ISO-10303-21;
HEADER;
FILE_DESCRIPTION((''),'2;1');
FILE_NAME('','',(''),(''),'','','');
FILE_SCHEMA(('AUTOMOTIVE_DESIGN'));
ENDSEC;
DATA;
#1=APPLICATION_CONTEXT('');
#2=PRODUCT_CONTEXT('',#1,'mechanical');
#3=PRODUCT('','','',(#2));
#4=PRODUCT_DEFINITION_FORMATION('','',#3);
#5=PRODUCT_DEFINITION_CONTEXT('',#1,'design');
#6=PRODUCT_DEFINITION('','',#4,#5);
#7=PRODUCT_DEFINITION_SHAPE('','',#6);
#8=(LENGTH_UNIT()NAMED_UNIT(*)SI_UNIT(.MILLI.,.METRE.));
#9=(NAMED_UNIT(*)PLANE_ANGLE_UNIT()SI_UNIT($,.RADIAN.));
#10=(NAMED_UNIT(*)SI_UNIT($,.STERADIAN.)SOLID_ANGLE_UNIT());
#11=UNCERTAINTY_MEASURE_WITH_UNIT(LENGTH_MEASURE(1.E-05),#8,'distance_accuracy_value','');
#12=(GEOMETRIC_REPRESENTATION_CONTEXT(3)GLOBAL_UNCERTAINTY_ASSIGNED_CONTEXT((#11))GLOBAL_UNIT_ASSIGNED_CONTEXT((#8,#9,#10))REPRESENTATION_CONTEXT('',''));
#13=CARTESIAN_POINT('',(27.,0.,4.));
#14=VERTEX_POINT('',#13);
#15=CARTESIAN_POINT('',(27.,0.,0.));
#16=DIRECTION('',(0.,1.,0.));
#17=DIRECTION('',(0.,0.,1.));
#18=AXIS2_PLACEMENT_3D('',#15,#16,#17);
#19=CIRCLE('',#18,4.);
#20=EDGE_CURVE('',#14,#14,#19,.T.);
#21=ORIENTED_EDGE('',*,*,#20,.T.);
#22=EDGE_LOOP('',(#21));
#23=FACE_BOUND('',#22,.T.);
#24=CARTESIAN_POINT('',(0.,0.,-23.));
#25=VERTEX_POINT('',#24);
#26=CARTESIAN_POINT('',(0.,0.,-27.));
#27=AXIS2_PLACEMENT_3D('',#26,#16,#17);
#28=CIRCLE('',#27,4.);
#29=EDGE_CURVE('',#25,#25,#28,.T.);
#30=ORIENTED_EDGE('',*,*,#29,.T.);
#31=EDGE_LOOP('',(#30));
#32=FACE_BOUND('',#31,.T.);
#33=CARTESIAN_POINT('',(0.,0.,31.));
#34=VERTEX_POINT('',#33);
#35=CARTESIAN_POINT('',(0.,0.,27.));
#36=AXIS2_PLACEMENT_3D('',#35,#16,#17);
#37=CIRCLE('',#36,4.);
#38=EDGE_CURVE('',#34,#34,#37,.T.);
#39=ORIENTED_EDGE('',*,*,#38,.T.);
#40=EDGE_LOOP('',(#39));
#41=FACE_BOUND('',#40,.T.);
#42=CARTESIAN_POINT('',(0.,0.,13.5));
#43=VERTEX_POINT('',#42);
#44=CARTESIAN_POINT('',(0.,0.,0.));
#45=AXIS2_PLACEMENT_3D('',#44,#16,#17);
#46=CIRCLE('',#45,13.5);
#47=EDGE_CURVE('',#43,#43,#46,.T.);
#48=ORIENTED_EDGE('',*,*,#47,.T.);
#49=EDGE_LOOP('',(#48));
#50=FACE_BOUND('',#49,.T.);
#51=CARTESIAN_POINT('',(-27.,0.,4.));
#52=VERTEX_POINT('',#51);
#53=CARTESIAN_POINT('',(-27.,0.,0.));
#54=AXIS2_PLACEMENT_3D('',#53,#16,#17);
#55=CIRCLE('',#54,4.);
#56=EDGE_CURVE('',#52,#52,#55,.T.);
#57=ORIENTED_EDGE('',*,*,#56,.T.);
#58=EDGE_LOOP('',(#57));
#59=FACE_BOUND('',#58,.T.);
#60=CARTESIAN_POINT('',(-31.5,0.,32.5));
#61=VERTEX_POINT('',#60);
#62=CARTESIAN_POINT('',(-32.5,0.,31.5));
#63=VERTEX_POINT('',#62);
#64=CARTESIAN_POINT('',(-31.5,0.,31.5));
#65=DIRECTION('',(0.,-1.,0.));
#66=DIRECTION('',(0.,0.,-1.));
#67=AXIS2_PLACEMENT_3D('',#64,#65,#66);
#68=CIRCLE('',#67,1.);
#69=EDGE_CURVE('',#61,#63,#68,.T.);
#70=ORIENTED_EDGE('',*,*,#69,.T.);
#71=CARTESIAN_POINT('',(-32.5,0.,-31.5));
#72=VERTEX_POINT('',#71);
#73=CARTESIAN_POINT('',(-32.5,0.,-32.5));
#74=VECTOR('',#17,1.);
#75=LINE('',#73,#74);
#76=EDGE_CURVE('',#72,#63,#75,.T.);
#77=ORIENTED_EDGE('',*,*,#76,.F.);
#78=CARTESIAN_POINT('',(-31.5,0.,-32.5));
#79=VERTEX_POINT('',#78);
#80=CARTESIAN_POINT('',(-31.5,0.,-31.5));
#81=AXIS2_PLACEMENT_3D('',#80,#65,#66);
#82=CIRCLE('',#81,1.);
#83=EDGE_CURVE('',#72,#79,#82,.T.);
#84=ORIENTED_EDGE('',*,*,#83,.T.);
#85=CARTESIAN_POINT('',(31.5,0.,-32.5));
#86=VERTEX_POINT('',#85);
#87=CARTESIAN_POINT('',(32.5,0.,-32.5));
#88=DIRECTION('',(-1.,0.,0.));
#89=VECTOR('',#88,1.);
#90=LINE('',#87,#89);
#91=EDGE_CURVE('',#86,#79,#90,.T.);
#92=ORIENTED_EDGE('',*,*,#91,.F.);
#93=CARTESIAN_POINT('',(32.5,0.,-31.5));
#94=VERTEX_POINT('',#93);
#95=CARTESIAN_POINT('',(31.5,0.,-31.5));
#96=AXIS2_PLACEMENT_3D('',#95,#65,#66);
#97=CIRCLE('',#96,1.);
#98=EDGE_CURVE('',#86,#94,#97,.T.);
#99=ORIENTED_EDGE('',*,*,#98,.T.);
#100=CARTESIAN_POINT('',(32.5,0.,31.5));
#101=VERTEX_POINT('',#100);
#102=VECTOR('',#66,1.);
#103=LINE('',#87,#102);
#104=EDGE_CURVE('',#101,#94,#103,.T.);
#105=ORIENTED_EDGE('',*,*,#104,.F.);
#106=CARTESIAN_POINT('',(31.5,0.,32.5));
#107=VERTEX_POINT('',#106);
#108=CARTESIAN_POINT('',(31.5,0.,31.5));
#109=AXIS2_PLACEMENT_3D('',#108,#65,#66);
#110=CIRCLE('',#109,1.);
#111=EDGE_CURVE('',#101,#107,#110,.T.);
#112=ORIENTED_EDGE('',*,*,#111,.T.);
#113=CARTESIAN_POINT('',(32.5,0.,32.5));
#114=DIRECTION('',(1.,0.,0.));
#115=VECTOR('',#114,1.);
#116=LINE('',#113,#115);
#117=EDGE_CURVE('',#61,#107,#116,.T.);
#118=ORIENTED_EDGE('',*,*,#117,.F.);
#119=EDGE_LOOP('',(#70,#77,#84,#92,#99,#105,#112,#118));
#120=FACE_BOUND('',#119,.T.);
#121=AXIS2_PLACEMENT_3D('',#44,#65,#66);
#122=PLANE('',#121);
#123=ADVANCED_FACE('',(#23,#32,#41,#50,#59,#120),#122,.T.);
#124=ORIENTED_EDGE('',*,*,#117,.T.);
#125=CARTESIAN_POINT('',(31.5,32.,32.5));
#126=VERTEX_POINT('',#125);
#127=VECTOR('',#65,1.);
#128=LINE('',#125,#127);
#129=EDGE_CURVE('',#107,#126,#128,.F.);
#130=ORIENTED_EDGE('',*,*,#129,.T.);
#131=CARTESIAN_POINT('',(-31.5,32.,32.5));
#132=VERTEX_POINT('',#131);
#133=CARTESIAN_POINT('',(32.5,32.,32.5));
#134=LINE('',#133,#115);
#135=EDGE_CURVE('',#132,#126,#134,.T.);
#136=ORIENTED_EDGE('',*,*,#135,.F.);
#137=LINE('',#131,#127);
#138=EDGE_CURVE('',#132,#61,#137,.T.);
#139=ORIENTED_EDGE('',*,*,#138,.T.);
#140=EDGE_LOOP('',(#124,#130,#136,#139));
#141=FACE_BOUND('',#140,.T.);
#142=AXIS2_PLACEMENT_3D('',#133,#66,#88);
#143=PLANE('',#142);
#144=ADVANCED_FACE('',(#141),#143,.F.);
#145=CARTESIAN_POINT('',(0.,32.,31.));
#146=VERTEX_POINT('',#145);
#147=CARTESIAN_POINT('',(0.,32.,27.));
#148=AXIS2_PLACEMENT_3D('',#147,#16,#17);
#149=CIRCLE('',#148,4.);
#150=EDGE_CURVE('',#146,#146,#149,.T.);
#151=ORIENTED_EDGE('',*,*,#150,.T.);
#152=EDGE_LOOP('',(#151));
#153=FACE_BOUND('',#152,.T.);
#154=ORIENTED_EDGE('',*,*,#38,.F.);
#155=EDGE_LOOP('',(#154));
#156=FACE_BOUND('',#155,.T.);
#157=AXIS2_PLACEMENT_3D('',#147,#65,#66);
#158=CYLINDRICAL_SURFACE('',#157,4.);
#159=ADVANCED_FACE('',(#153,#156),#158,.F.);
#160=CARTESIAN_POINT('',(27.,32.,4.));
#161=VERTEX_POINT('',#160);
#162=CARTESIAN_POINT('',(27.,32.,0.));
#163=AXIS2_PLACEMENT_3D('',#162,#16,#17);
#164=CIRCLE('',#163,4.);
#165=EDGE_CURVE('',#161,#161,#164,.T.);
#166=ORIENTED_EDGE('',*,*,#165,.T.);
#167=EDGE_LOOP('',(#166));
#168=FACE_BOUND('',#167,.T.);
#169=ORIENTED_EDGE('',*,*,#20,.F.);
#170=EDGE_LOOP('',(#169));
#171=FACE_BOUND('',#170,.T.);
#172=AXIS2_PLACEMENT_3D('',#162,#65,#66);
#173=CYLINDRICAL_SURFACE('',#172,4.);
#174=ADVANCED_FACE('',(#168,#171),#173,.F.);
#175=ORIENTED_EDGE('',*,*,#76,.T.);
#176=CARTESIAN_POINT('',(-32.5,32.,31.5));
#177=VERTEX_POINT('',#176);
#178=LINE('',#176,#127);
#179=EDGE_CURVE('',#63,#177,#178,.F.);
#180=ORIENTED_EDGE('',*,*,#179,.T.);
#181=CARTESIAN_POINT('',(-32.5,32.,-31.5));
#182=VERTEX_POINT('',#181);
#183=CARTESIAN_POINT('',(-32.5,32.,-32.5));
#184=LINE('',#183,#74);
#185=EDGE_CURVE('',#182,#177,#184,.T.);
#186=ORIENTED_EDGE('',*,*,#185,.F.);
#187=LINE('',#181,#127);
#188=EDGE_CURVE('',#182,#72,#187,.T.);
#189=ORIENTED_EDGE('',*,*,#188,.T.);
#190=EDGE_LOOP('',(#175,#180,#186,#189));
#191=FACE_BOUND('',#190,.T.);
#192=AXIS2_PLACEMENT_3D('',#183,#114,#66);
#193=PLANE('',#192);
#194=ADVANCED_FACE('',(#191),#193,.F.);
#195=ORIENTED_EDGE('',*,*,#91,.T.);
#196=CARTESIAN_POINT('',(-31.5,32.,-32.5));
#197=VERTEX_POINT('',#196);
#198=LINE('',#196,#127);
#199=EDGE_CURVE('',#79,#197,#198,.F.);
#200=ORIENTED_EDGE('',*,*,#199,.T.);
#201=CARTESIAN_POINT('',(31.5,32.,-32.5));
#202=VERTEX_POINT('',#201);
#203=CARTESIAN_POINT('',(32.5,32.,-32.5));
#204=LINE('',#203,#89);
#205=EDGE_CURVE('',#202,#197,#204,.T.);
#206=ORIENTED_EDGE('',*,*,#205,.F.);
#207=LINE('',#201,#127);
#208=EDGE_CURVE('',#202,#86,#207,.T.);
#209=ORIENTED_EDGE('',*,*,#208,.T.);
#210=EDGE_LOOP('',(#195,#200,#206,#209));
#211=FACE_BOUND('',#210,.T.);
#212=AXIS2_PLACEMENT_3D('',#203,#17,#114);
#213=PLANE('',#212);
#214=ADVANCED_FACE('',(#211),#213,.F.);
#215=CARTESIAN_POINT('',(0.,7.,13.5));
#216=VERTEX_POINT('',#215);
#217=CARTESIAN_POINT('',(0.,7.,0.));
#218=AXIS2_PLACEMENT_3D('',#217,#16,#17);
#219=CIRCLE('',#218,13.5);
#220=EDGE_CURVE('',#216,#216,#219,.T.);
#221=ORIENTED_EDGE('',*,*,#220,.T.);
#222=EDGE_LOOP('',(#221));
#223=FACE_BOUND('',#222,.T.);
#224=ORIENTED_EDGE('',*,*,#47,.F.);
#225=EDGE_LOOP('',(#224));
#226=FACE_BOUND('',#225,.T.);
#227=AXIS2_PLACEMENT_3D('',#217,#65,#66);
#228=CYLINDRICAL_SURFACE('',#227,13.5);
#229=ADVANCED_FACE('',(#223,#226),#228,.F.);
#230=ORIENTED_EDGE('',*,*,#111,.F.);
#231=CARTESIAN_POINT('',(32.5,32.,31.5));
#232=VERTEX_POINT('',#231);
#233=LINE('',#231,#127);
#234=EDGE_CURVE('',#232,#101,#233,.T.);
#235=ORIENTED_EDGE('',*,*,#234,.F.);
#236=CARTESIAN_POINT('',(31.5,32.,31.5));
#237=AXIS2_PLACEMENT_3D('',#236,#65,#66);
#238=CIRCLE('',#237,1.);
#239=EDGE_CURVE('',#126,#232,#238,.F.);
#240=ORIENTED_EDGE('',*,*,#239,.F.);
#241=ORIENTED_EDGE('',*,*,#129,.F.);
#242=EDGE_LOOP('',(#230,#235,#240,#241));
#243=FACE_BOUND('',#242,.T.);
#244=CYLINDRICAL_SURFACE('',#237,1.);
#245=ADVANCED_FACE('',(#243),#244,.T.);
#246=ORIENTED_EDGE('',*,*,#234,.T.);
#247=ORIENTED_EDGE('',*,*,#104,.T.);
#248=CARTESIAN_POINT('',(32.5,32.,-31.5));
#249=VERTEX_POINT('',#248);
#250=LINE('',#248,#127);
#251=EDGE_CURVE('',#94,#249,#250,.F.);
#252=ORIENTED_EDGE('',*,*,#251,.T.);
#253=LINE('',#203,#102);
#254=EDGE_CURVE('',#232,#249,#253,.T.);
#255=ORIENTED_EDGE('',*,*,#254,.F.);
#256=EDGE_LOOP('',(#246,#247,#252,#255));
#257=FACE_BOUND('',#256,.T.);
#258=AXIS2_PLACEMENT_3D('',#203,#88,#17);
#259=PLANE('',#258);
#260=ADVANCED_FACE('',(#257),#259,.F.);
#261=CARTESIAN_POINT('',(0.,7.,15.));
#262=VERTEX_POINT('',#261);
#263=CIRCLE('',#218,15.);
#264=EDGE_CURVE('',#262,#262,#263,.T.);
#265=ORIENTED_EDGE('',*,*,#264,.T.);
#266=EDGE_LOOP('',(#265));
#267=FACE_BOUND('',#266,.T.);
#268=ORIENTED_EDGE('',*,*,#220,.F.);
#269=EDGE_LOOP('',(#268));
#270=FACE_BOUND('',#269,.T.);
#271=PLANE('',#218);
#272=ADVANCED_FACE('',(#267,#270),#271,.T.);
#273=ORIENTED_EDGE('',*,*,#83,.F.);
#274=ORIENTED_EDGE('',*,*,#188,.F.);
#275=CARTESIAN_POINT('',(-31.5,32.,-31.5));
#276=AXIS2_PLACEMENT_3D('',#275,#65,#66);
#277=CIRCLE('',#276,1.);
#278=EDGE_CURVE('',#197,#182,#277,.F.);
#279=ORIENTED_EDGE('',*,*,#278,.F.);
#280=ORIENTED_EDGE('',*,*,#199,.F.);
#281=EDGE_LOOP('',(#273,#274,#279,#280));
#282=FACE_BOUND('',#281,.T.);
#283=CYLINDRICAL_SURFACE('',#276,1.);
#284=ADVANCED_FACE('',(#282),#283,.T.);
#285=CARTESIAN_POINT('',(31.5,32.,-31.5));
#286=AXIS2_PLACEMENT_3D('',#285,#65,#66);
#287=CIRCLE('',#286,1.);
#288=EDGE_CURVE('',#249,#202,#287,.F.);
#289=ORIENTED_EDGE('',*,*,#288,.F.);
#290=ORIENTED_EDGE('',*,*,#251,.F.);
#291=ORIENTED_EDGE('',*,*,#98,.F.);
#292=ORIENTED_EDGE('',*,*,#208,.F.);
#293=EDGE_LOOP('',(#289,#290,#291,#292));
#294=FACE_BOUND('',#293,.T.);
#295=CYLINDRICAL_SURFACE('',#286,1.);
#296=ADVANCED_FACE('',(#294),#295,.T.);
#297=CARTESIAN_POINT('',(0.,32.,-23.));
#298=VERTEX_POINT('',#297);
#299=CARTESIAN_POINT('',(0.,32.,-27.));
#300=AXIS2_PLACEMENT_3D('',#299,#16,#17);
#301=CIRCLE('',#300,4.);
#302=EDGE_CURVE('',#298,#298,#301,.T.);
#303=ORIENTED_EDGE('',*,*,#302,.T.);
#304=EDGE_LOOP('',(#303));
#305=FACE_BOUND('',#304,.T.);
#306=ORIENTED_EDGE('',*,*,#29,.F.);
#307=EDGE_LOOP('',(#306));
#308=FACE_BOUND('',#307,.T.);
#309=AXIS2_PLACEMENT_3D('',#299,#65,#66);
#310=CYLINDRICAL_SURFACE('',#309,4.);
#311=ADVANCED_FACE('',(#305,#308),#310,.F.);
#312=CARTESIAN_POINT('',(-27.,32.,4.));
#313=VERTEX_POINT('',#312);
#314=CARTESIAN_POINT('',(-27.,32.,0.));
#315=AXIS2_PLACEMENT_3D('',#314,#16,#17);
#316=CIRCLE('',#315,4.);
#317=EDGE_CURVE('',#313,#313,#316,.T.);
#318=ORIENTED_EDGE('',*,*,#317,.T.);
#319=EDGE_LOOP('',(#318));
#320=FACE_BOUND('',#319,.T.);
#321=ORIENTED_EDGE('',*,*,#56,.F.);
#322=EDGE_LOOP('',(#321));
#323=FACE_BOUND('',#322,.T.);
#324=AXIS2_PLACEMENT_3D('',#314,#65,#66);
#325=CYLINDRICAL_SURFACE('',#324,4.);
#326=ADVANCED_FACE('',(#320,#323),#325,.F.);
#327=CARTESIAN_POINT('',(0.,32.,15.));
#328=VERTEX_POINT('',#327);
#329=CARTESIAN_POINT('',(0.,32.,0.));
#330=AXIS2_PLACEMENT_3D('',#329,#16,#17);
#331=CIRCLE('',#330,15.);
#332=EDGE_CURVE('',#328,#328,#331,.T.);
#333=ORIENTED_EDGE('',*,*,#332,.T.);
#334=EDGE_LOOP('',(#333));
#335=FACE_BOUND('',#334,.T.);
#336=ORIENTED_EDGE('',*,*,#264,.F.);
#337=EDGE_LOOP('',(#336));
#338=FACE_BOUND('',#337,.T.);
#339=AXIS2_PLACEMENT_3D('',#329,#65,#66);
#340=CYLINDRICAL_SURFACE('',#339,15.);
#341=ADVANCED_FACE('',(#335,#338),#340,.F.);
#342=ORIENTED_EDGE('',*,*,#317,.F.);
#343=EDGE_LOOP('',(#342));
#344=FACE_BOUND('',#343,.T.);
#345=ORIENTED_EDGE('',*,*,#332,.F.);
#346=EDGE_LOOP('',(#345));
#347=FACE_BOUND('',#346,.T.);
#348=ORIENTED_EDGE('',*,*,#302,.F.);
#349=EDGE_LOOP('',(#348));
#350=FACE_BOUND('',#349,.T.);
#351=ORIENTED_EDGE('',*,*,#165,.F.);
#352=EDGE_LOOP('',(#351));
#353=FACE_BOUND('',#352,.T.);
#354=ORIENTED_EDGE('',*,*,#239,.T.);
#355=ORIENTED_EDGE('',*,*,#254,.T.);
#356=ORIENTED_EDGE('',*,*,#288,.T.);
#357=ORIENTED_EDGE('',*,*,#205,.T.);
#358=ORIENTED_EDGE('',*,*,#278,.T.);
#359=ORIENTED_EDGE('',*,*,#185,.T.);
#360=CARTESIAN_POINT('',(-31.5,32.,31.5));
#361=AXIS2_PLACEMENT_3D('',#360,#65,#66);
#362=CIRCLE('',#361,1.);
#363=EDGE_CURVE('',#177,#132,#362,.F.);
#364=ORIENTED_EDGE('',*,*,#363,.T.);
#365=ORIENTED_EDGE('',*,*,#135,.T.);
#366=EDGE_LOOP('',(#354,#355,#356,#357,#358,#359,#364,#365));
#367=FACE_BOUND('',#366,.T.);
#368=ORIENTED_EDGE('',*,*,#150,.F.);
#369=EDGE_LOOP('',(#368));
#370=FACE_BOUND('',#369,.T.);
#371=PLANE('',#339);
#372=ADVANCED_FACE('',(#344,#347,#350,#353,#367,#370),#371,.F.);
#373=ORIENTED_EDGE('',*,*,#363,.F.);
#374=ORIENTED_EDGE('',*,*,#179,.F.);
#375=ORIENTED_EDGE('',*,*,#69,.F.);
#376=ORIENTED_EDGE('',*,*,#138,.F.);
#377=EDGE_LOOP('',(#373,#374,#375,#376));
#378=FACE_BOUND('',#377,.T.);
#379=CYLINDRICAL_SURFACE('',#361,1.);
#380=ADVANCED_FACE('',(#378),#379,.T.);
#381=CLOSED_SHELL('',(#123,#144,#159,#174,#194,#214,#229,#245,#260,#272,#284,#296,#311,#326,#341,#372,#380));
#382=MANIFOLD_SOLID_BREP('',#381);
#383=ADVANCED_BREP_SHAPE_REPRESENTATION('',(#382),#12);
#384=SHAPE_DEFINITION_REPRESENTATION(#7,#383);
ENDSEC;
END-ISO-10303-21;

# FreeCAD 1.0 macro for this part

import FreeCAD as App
import Part
import Sketcher
from FreeCAD import Vector


def edges_at(feature, points):
    """Names of the edges that pass closest to the given points."""
    edges = feature.Shape.Edges
    near = lambda p: min(range(len(edges)), key=lambda i: edges[i].distToShape(Part.Vertex(*p))[0])
    return sorted({f"Edge{near(p) + 1}" for p in points})


def add_polygon(sketch, points):
    """Adds a closed chain of lines whose ends are joined by coincident constraints."""
    first, n = sketch.GeometryCount, len(points)
    for a, b in zip(points, points[1:] + points[:1]):
        sketch.addGeometry(Part.LineSegment(App.Vector(*a, 0), App.Vector(*b, 0)), False)
    for i in range(n):
        sketch.addConstraint(Sketcher.Constraint("Coincident", first + i, 2, first + (i + 1) % n, 1))

doc = App.newDocument("Part")
body = doc.addObject("PartDesign::Body", "Body")

# Sketch on XZ plane
sketch1 = body.newObject("Sketcher::SketchObject", "Sketch")
sketch1.AttachmentSupport = (doc.getObject("XZ_Plane"), [""])
sketch1.MapMode = "FlatFace"
add_polygon(sketch1, [(-32.5, -32.5), (-32.5, 32.5), (32.5, 32.5), (32.5, -32.5)])  # lines 0-3
sketch1.addGeometry(Part.Circle(Vector(0, 27, 0), Vector(0, 0, 1), 4), False)  # 4
sketch1.addGeometry(Part.Circle(Vector(-27, 0, 0), Vector(0, 0, 1), 4), False)  # 5
sketch1.addGeometry(Part.Circle(Vector(0, 0, 0), Vector(0, 0, 1), 15), False)  # 6
sketch1.addGeometry(Part.Circle(Vector(27, 0, 0), Vector(0, 0, 1), 4), False)  # 7
sketch1.addGeometry(Part.Circle(Vector(0, -27, 0), Vector(0, 0, 1), 4), False)  # 8
sketch1.addConstraint([
    Sketcher.Constraint("Vertical", 0),
    Sketcher.Constraint("Horizontal", 1),
    Sketcher.Constraint("Vertical", 2),
    Sketcher.Constraint("Horizontal", 3),
    Sketcher.Constraint("Coincident", 6, 3, -1, 1),
    Sketcher.Constraint("Equal", 4, 5),
    Sketcher.Constraint("Equal", 5, 7),
    Sketcher.Constraint("Equal", 7, 8),
    Sketcher.Constraint("Symmetric", 5, 3, 7, 3, -1, 1),
    Sketcher.Constraint("Symmetric", 4, 3, 8, 3, -1, 1),
    Sketcher.Constraint("Symmetric", 0, 2, 2, 2, -1, 1),
    Sketcher.Constraint("PointOnObject", 4, 3, -2),
    Sketcher.Constraint("PointOnObject", 5, 3, -1),
    Sketcher.Constraint("Equal", 3, 0),
    Sketcher.Constraint("Diameter", 4, 8.0),
    Sketcher.Constraint("Diameter", 6, 30.0),
    Sketcher.Constraint("DistanceX", 1, 1, 1, 2, 65.0),
    Sketcher.Constraint("DistanceY", -1, 1, 4, 3, 27.0),
    Sketcher.Constraint("DistanceX", 5, 3, -1, 1, 27.0),
])
pad1 = body.newObject("PartDesign::Pad", "Pad")
pad1.Profile = sketch1
pad1.Length = 32
pad1.Reversed = True

# Sketch on XZ plane
sketch2 = body.newObject("Sketcher::SketchObject", "Sketch001")
sketch2.AttachmentSupport = (doc.getObject("XZ_Plane"), [""])
sketch2.MapMode = "FlatFace"
sketch2.addGeometry([
    Part.Circle(Vector(0, 0, 0), Vector(0, 0, 1), 15),
    Part.Circle(Vector(0, 0, 0), Vector(0, 0, 1), 14),
], False)
sketch2.addConstraint([
    Sketcher.Constraint("Coincident", 0, 3, -1, 1),
    Sketcher.Constraint("Coincident", 1, 3, -1, 1),
    Sketcher.Constraint("Diameter", 0, 30.0),
    Sketcher.Constraint("Diameter", 1, 27.0),
])
pad2 = body.newObject("PartDesign::Pad", "Pad001")
pad2.Profile = sketch2
pad2.Length = 7
pad2.Reversed = True
doc.recompute()

fillet = body.newObject("PartDesign::Fillet", "Fillet")
fillet.Base = (pad2, edges_at(pad2, [
    (-32.5, 16, -32.5),
    (32.5, 16, -32.5),
    (32.5, 16, 32.5),
    (-32.5, 16, 32.5),
]))
fillet.Radius = 1

doc.recompute()
